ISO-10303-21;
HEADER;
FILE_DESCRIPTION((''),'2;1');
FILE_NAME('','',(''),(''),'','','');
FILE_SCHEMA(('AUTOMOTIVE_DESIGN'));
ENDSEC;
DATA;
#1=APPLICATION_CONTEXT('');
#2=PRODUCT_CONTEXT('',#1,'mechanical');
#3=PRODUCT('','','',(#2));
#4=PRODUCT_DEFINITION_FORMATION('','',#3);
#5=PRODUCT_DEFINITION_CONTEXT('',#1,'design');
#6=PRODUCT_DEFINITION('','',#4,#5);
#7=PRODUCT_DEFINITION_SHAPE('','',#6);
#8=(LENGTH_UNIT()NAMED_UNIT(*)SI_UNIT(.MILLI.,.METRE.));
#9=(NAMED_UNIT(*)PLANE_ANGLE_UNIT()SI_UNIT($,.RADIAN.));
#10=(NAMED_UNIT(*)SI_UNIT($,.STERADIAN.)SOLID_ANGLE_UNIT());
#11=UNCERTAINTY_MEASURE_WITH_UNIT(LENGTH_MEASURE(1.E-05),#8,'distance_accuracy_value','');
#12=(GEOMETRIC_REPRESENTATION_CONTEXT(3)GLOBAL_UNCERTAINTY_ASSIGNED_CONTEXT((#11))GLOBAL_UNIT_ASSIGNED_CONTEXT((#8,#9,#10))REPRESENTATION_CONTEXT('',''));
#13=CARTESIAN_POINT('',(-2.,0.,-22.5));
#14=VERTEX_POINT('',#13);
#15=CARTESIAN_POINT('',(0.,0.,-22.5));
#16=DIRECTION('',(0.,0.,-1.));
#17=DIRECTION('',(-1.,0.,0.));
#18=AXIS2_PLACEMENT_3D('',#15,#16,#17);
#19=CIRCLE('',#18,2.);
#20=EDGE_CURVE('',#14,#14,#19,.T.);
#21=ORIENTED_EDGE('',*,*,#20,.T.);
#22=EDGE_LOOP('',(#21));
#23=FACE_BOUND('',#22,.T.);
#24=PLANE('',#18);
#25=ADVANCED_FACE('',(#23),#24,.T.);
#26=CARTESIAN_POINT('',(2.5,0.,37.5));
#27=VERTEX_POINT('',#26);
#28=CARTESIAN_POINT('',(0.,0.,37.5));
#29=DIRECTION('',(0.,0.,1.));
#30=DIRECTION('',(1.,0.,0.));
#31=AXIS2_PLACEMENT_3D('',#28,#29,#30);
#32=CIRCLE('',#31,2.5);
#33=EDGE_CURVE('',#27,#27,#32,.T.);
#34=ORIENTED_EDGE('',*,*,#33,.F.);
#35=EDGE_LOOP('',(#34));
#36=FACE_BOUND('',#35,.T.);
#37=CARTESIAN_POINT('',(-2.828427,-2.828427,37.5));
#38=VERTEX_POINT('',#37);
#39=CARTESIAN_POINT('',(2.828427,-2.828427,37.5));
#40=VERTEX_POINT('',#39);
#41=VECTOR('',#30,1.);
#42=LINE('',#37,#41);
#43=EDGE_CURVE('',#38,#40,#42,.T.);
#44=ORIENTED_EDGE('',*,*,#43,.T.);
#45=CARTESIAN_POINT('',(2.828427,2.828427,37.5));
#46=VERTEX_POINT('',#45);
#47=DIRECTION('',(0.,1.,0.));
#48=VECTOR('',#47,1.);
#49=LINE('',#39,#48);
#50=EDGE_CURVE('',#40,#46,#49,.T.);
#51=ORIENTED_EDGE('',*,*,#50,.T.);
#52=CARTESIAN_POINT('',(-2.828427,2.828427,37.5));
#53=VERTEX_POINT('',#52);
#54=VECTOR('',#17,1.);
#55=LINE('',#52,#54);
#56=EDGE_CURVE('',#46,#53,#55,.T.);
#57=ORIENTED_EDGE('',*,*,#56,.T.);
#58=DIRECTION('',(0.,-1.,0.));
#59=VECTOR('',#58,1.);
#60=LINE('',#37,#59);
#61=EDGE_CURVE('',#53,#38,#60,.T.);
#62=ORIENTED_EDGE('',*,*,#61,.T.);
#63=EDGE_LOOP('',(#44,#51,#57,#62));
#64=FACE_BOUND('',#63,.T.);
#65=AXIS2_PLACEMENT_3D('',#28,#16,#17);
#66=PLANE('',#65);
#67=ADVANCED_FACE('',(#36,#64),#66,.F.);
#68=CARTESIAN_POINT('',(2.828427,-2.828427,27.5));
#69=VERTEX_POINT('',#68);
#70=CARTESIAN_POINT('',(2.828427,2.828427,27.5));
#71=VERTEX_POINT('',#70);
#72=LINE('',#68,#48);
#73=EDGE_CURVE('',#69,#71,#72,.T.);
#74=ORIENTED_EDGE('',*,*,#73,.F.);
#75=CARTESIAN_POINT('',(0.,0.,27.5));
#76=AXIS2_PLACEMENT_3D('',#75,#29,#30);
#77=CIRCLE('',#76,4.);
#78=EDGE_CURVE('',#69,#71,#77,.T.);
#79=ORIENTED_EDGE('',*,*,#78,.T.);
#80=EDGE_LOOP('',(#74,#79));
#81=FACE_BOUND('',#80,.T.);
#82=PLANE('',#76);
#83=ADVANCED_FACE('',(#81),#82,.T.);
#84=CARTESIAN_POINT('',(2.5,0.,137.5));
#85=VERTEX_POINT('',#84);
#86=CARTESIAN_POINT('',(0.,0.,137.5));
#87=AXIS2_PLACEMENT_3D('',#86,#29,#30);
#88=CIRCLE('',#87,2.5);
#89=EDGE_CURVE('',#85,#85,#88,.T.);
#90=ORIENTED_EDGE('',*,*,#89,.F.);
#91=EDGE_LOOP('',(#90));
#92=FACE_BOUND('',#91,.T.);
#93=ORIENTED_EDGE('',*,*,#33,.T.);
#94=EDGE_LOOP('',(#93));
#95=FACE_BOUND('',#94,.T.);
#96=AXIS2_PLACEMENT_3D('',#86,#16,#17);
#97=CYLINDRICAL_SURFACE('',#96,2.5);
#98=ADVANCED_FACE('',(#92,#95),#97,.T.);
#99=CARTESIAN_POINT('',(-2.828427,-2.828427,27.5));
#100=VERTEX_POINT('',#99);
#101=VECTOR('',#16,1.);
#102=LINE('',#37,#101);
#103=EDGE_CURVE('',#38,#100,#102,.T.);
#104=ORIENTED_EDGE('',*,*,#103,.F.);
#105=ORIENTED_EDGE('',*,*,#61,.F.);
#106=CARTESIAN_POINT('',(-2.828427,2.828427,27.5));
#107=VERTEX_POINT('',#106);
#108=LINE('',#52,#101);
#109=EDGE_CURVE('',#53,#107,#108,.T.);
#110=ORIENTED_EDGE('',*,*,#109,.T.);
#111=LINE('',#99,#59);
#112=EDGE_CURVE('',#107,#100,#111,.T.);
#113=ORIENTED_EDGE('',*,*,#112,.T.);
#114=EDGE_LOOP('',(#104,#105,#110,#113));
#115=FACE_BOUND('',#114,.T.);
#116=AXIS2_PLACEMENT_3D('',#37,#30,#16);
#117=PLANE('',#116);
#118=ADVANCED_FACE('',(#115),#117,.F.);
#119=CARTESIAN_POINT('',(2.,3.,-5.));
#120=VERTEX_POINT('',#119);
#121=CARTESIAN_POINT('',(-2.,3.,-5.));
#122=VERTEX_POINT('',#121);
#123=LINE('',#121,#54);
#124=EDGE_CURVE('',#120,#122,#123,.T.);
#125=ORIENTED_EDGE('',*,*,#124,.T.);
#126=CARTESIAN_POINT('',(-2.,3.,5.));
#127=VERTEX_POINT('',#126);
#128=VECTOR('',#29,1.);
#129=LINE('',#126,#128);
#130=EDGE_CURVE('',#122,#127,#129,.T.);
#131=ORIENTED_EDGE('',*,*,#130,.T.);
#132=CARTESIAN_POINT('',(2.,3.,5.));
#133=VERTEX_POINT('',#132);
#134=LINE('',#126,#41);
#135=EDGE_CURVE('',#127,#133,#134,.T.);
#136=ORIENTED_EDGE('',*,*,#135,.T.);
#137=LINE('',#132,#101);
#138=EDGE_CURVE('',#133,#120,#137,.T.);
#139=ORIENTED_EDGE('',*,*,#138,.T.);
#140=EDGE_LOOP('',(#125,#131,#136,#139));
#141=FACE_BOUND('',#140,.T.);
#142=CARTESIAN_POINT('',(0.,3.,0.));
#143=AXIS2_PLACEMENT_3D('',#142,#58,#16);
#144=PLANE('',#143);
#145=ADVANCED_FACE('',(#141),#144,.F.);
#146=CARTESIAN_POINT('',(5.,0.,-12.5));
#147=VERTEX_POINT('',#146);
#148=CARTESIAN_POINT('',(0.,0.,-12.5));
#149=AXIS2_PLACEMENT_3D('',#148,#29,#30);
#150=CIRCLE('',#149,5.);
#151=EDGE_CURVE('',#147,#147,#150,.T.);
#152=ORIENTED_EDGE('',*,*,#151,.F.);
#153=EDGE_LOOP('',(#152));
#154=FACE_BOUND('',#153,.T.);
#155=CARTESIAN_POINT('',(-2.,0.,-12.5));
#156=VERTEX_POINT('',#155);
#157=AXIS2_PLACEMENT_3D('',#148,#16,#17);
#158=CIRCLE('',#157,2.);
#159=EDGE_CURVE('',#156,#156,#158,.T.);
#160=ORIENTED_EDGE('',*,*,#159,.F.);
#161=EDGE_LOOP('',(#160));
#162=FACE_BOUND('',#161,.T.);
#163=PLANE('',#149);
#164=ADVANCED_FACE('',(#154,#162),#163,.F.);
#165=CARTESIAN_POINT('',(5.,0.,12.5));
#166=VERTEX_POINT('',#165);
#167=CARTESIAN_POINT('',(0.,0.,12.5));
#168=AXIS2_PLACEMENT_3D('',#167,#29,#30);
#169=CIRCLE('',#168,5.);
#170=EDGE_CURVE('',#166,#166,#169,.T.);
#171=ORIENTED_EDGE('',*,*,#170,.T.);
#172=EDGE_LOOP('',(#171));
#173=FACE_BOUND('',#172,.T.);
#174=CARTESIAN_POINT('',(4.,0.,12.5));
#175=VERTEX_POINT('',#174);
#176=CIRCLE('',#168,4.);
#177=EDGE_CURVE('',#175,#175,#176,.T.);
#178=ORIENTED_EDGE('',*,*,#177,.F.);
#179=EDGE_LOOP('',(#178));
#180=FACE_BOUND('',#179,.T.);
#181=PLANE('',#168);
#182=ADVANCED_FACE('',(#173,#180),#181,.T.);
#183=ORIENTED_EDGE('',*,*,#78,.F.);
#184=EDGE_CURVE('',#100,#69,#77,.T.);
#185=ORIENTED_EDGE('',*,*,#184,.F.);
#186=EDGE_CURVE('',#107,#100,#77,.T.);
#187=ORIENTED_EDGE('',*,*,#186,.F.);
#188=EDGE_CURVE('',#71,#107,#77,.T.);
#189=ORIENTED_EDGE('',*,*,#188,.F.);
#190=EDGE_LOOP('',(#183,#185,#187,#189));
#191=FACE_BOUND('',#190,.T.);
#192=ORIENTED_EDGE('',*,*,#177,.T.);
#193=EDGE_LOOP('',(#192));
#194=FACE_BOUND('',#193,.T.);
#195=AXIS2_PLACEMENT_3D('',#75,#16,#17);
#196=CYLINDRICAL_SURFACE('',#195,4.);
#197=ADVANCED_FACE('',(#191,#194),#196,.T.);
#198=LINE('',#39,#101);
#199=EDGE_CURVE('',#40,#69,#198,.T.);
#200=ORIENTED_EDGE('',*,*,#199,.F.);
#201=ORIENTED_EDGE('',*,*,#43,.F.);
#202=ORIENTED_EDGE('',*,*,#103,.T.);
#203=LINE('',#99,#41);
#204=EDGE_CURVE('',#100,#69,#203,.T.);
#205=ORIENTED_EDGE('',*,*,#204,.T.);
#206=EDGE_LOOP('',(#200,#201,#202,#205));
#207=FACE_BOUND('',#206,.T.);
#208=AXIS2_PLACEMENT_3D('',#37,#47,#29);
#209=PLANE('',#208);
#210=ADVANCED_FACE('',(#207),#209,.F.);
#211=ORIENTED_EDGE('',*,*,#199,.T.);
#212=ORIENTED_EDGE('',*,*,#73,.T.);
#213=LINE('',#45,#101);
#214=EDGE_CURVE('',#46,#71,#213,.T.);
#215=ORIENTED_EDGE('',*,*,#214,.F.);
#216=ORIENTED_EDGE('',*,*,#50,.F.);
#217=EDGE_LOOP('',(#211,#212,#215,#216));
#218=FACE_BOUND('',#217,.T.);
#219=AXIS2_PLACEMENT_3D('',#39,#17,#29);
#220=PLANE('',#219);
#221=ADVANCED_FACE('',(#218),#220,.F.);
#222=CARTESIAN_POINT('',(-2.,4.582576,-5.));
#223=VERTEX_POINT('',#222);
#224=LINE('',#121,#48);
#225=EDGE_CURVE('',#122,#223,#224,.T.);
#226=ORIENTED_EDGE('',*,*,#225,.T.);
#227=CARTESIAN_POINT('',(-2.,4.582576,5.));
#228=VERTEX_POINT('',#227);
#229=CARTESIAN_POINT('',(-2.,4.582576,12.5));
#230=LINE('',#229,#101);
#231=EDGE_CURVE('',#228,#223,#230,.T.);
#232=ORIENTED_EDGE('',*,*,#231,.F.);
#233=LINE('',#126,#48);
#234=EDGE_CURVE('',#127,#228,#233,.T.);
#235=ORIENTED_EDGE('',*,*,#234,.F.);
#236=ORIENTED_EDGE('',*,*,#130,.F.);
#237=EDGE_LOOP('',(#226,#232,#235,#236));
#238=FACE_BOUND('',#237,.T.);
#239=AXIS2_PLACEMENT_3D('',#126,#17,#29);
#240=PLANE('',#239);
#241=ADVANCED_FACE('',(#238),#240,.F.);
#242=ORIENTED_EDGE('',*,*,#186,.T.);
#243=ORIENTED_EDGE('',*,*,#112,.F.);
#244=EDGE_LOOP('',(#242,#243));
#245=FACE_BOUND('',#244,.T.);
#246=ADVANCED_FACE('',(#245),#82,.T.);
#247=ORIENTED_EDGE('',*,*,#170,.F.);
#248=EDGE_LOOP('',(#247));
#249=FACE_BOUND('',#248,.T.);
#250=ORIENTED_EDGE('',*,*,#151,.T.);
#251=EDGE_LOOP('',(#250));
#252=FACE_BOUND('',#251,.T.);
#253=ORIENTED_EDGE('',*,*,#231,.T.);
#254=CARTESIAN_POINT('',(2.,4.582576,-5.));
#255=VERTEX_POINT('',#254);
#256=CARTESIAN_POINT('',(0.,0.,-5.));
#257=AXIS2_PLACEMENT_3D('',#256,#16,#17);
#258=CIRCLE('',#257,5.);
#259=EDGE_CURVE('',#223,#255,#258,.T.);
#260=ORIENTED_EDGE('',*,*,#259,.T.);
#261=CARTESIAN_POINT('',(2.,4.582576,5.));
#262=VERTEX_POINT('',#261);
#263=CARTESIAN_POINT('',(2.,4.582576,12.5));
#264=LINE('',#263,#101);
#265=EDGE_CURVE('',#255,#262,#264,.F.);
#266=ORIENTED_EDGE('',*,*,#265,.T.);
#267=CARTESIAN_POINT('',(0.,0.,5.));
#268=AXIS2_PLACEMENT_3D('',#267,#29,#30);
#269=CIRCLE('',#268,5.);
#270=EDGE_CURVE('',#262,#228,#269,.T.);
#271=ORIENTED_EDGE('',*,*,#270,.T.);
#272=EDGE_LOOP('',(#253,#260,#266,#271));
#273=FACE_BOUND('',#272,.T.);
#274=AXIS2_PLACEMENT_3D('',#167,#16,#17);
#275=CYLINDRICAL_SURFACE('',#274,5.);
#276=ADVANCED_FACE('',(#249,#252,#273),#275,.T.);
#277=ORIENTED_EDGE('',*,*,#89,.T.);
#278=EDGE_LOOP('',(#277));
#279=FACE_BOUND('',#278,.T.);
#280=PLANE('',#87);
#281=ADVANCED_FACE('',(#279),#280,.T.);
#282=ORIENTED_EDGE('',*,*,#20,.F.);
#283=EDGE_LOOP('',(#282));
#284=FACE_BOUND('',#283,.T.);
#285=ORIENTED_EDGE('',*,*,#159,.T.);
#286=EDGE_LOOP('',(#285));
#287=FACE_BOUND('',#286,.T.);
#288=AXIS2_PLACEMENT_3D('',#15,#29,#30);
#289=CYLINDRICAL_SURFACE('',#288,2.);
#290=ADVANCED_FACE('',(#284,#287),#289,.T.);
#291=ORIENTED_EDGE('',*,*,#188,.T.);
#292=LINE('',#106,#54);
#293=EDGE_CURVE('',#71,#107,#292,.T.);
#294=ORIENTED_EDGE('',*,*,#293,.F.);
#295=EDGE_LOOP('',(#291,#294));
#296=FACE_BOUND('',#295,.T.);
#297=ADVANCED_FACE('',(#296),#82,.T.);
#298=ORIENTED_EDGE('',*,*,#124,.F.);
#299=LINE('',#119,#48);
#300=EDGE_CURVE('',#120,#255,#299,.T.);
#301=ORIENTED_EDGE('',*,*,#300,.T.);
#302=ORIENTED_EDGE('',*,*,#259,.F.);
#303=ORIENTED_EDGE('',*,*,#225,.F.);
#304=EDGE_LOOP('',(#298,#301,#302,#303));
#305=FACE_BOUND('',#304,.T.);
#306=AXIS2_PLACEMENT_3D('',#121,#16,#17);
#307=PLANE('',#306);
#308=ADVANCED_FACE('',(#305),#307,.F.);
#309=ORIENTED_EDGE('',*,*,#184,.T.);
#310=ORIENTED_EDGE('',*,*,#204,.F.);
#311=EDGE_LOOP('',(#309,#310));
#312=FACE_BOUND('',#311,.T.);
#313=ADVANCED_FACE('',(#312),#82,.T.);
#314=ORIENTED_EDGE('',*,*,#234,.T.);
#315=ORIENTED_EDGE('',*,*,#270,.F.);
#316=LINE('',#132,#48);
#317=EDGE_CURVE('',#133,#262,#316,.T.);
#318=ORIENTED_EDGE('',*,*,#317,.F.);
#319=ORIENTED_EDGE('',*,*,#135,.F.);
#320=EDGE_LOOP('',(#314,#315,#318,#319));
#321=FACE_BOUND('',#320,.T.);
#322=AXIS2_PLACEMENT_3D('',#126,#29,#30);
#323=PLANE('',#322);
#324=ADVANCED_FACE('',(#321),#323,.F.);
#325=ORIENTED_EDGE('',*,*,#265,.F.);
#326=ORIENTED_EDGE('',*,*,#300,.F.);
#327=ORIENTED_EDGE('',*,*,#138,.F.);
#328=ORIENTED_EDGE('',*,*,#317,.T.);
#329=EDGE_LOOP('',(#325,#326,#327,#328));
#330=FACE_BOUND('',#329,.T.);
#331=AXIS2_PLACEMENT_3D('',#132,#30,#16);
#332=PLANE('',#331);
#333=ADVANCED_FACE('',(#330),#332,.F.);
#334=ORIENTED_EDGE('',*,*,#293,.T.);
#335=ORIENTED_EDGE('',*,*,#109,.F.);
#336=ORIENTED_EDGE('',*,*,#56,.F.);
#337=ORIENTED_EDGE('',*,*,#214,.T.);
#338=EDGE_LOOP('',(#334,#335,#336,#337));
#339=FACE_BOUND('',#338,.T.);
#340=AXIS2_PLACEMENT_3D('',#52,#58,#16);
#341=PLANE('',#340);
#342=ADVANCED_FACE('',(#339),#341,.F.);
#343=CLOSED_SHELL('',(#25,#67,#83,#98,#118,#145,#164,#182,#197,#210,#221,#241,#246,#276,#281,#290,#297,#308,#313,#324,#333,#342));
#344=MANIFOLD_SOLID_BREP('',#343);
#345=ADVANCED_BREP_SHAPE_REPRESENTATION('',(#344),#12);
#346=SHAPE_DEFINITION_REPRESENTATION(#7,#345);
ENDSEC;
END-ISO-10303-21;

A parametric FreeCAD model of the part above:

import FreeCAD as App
import Part
import Sketcher
Q = App.Units.Quantity


def add_polygon(sketch, points):
    """Adds a closed chain of lines whose ends are joined by coincident constraints."""
    first, n = sketch.GeometryCount, len(points)
    for a, b in zip(points, points[1:] + points[:1]):
        sketch.addGeometry(Part.LineSegment(App.Vector(*a, 0), App.Vector(*b, 0)), False)
    for i in range(n):
        sketch.addConstraint(Sketcher.Constraint("Coincident", first + i, 2, first + (i + 1) % n, 1))

doc = App.newDocument("Part")
params = doc.addObject("Spreadsheet::Sheet", "Params")
for row, (alias, value) in enumerate([
    ("sketch1_diameter", "10 mm"),
    ("pad1_length", "25 mm"),
    ("sketch2_diameter", "4 mm"),
    ("pad2_length", "10 mm"),
    ("sketch3_diameter", "8 mm"),
    ("pad3_length", "15 mm"),
    ("pad4_length", "10 mm"),
    ("sketch5_width", "4 mm"),
    ("sketch5_height", "10 mm"),
    ("pocket1_length", "2 mm"),
    ("sketch6_diameter", "5 mm"),
    ("pad5_length", "100 mm"),
], start=1):
    params.set(f"A{row}", alias)
    params.set(f"B{row}", "=" + value)
    params.setAlias(f"B{row}", alias)

body = doc.addObject("PartDesign::Body", "Body")

# Sketch on XY plane
sketch1 = body.newObject("Sketcher::SketchObject", "Sketch")
sketch1.AttachmentSupport = (doc.getObject("XY_Plane"), [""])
sketch1.MapMode = "FlatFace"
sketch1.addGeometry(Part.Circle(App.Vector(0, 0, 0), App.Vector(0, 0, 1), 5), False)
sketch1.addConstraint(Sketcher.Constraint("Coincident", 0, 3, -1, 1))
sketch1.addConstraint(Sketcher.Constraint("Diameter", 0, Q("10 mm")))
sketch1.setExpression("Constraints[1]", "Params.sketch1_diameter")
pad1 = body.newObject("PartDesign::Pad", "Pad")
pad1.Profile = sketch1
pad1.setExpression("Length", "Params.pad1_length")
pad1.Midplane = True

# Sketch on XY plane
sketch2 = body.newObject("Sketcher::SketchObject", "Sketch001")
sketch2.AttachmentSupport = (doc.getObject("XY_Plane"), [""])
sketch2.MapMode = "FlatFace"
sketch2.AttachmentOffset = App.Placement(App.Vector(0, 0, -12.5), App.Rotation())
sketch2.addGeometry(Part.Circle(App.Vector(0, 0, 0), App.Vector(0, 0, 1), 2), False)
sketch2.addConstraint(Sketcher.Constraint("Coincident", 0, 3, -1, 1))
sketch2.addConstraint(Sketcher.Constraint("Diameter", 0, Q("4 mm")))
sketch2.setExpression("Constraints[1]", "Params.sketch2_diameter")
pad2 = body.newObject("PartDesign::Pad", "Pad001")
pad2.Profile = sketch2
pad2.setExpression("Length", "Params.pad2_length")
pad2.Reversed = True

# Sketch on XY plane
sketch3 = body.newObject("Sketcher::SketchObject", "Sketch002")
sketch3.AttachmentSupport = (doc.getObject("XY_Plane"), [""])
sketch3.MapMode = "FlatFace"
sketch3.AttachmentOffset = App.Placement(App.Vector(0, 0, 12.5), App.Rotation())
sketch3.addGeometry(Part.Circle(App.Vector(0, 0, 0), App.Vector(0, 0, 1), 4), False)
sketch3.addConstraint(Sketcher.Constraint("Coincident", 0, 3, -1, 1))
sketch3.addConstraint(Sketcher.Constraint("Diameter", 0, Q("8 mm")))
sketch3.setExpression("Constraints[1]", "Params.sketch3_diameter")
pad3 = body.newObject("PartDesign::Pad", "Pad002")
pad3.Profile = sketch3
pad3.setExpression("Length", "Params.pad3_length")

# Sketch on XY plane
sketch4 = body.newObject("Sketcher::SketchObject", "Sketch003")
sketch4.AttachmentSupport = (doc.getObject("XY_Plane"), [""])
sketch4.MapMode = "FlatFace"
sketch4.AttachmentOffset = App.Placement(App.Vector(0, 0, 27.5), App.Rotation())
add_polygon(sketch4, [(-3, 3), (-3, -3), (3, -3), (3, 3)])  # lines 0-3
sketch4.addConstraint(Sketcher.Constraint("Vertical", 0))
sketch4.addConstraint(Sketcher.Constraint("Horizontal", 1))
sketch4.addConstraint(Sketcher.Constraint("Vertical", 2))
sketch4.addConstraint(Sketcher.Constraint("Horizontal", 3))
sketch4.addConstraint(Sketcher.Constraint("Symmetric", 0, 2, 2, 2, -1, 1))
sketch4.addConstraint(Sketcher.Constraint("Equal", 3, 0))
sketch4.addConstraint(Sketcher.Constraint("DistanceX", 1, 1, 1, 2, Q("5.656854 mm")))
pad4 = body.newObject("PartDesign::Pad", "Pad003")
pad4.Profile = sketch4
pad4.setExpression("Length", "Params.pad4_length")

# Sketch on XZ plane
sketch5 = body.newObject("Sketcher::SketchObject", "Sketch004")
sketch5.AttachmentSupport = (doc.getObject("XZ_Plane"), [""])
sketch5.MapMode = "FlatFace"
sketch5.AttachmentOffset = App.Placement(App.Vector(0, 0, -5), App.Rotation())
add_polygon(sketch5, [(-2, -5), (-2, 5), (2, 5), (2, -5)])  # lines 0-3
sketch5.addConstraint(Sketcher.Constraint("Vertical", 0))
sketch5.addConstraint(Sketcher.Constraint("Horizontal", 1))
sketch5.addConstraint(Sketcher.Constraint("Vertical", 2))
sketch5.addConstraint(Sketcher.Constraint("Horizontal", 3))
sketch5.addConstraint(Sketcher.Constraint("Symmetric", 0, 2, 2, 2, -1, 1))
sketch5.addConstraint(Sketcher.Constraint("DistanceX", 1, 1, 1, 2, Q("4 mm")))
sketch5.addConstraint(Sketcher.Constraint("DistanceY", 0, 1, 0, 2, Q("10 mm")))
sketch5.setExpression("Constraints[9]", "Params.sketch5_width")
sketch5.setExpression("Constraints[10]", "Params.sketch5_height")
pocket1 = body.newObject("PartDesign::Pocket", "Pocket")
pocket1.Profile = sketch5
pocket1.setExpression("Length", "Params.pocket1_length")
pocket1.Reversed = True

# Sketch on XY plane
sketch6 = body.newObject("Sketcher::SketchObject", "Sketch005")
sketch6.AttachmentSupport = (doc.getObject("XY_Plane"), [""])
sketch6.MapMode = "FlatFace"
sketch6.AttachmentOffset = App.Placement(App.Vector(0, 0, 37.5), App.Rotation())
sketch6.addGeometry(Part.Circle(App.Vector(0, 0, 0), App.Vector(0, 0, 1), 2.5), False)
sketch6.addConstraint(Sketcher.Constraint("Coincident", 0, 3, -1, 1))
sketch6.addConstraint(Sketcher.Constraint("Diameter", 0, Q("5 mm")))
sketch6.setExpression("Constraints[1]", "Params.sketch6_diameter")
pad5 = body.newObject("PartDesign::Pad", "Pad004")
pad5.Profile = sketch6
pad5.setExpression("Length", "Params.pad5_length")

doc.recompute()
